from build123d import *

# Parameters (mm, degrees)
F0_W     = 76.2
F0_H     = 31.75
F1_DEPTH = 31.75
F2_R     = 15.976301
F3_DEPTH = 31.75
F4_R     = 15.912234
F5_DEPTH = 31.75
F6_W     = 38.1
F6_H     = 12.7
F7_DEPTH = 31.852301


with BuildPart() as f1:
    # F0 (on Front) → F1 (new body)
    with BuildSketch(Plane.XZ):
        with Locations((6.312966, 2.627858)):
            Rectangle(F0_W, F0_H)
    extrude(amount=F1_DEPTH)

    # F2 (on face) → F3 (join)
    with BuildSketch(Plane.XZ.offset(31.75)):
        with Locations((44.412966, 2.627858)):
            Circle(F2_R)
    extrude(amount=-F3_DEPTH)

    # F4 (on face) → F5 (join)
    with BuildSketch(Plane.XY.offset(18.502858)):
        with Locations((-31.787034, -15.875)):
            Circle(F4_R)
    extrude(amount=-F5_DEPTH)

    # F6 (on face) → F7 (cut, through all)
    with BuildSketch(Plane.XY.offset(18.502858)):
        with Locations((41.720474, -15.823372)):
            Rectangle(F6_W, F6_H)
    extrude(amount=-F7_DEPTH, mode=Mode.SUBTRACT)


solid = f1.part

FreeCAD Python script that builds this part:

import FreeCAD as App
import Part
import Sketcher
from FreeCAD import Vector
Q = App.Units.Quantity

doc = App.newDocument("Part")
params = doc.addObject("Spreadsheet::Sheet", "Params")
for row, (alias, value) in enumerate([
    ("sketch1_width", "3 in"),
    ("sketch1_height", "1.25 in"),
    ("pad1_length", "1.25 in"),
    ("pad2_length", "1.25 in"),
    ("pad3_length", "1.25 in"),
    ("sketch4_width", "1.5 in"),
    ("sketch4_height", "0.5 in"),
], start=1):
    params.set(f"A{row}", alias)
    params.set(f"B{row}", "=" + value)
    params.setAlias(f"B{row}", alias)

body = doc.addObject("PartDesign::Body", "Body")

# Sketch on XZ plane
sketch1 = body.newObject("Sketcher::SketchObject", "Sketch")
sketch1.AttachmentSupport = (doc.getObject("XZ_Plane"), [""])
sketch1.MapMode = "FlatFace"
sketch1.addGeometry(Part.LineSegment(Vector(-32, 19, 0), Vector(-32, -13, 0)), False)
sketch1.addGeometry(Part.LineSegment(Vector(-32, -13, 0), Vector(44, -13, 0)), False)
sketch1.addGeometry(Part.LineSegment(Vector(44, -13, 0), Vector(44, 19, 0)), False)
sketch1.addGeometry(Part.LineSegment(Vector(44, 19, 0), Vector(-32, 19, 0)), False)
sketch1.addConstraint(Sketcher.Constraint("Coincident", 0, 2, 1, 1))
sketch1.addConstraint(Sketcher.Constraint("Coincident", 1, 2, 2, 1))
sketch1.addConstraint(Sketcher.Constraint("Coincident", 2, 2, 3, 1))
sketch1.addConstraint(Sketcher.Constraint("Coincident", 3, 2, 0, 1))
sketch1.addConstraint(Sketcher.Constraint("Vertical", 0))
sketch1.addConstraint(Sketcher.Constraint("Horizontal", 1))
sketch1.addConstraint(Sketcher.Constraint("Vertical", 2))
sketch1.addConstraint(Sketcher.Constraint("Horizontal", 3))
sketch1.addConstraint(Sketcher.Constraint("DistanceX", 1, 1, 1, 2, Q("3 in")))
sketch1.addConstraint(Sketcher.Constraint("DistanceY", 0, 2, 0, 1, Q("1.25 in")))
sketch1.addConstraint(Sketcher.Constraint("DistanceY", -1, 1, 2, 2, 18.502858))
sketch1.addConstraint(Sketcher.Constraint("DistanceX", 0, 2, -1, 1, 31.787034))
sketch1.setExpression("Constraints[8]", "Params.sketch1_width")
sketch1.setExpression("Constraints[9]", "Params.sketch1_height")
pad1 = body.newObject("PartDesign::Pad", "Pad")
pad1.Profile = sketch1
pad1.setExpression("Length", "Params.pad1_length")

# Sketch on XZ plane
sketch2 = body.newObject("Sketcher::SketchObject", "Sketch001")
sketch2.AttachmentSupport = (doc.getObject("XZ_Plane"), [""])
sketch2.MapMode = "FlatFace"
sketch2.AttachmentOffset = App.Placement(Vector(0, 0, 1.25 * 25.4), App.Rotation())
sketch2.addGeometry(Part.Circle(Vector(44, 3, 0), Vector(0, 0, 1), 16), False)
sketch2.addConstraint(Sketcher.Constraint("Diameter", 0, 31.952602))
sketch2.addConstraint(Sketcher.Constraint("DistanceX", -1, 1, 0, 3, 44.412966))
sketch2.addConstraint(Sketcher.Constraint("DistanceY", -1, 1, 0, 3, 2.627858))
pad2 = body.newObject("PartDesign::Pad", "Pad001")
pad2.Profile = sketch2
pad2.setExpression("Length", "Params.pad2_length")
pad2.Reversed = True

# Sketch on XY plane
sketch3 = body.newObject("Sketcher::SketchObject", "Sketch002")
sketch3.AttachmentSupport = (doc.getObject("XY_Plane"), [""])
sketch3.MapMode = "FlatFace"
sketch3.AttachmentOffset = App.Placement(Vector(0, 0, 18.502858), App.Rotation())
sketch3.addGeometry(Part.Circle(Vector(-32, -16, 0), Vector(0, 0, 1), 16), False)
sketch3.addConstraint(Sketcher.Constraint("DistanceY", 0, 3, -1, 1, Q("0.625 in")))
sketch3.addConstraint(Sketcher.Constraint("Diameter", 0, 31.824468))
sketch3.addConstraint(Sketcher.Constraint("DistanceX", 0, 3, -1, 1, 31.787034))
pad3 = body.newObject("PartDesign::Pad", "Pad002")
pad3.Profile = sketch3
pad3.setExpression("Length", "Params.pad3_length")
pad3.Reversed = True

# Sketch on XY plane
sketch4 = body.newObject("Sketcher::SketchObject", "Sketch003")
sketch4.AttachmentSupport = (doc.getObject("XY_Plane"), [""])
sketch4.MapMode = "FlatFace"
sketch4.AttachmentOffset = App.Placement(Vector(0, 0, 18.502858), App.Rotation())
sketch4.addGeometry(Part.LineSegment(Vector(23, -9, 0), Vector(23, -22, 0)), False)
sketch4.addGeometry(Part.LineSegment(Vector(23, -22, 0), Vector(61, -22, 0)), False)
sketch4.addGeometry(Part.LineSegment(Vector(61, -22, 0), Vector(61, -9, 0)), False)
sketch4.addGeometry(Part.LineSegment(Vector(61, -9, 0), Vector(23, -9, 0)), False)
sketch4.addConstraint(Sketcher.Constraint("Coincident", 0, 2, 1, 1))
sketch4.addConstraint(Sketcher.Constraint("Coincident", 1, 2, 2, 1))
sketch4.addConstraint(Sketcher.Constraint("Coincident", 2, 2, 3, 1))
sketch4.addConstraint(Sketcher.Constraint("Coincident", 3, 2, 0, 1))
sketch4.addConstraint(Sketcher.Constraint("Vertical", 0))
sketch4.addConstraint(Sketcher.Constraint("Horizontal", 1))
sketch4.addConstraint(Sketcher.Constraint("Vertical", 2))
sketch4.addConstraint(Sketcher.Constraint("Horizontal", 3))
sketch4.addConstraint(Sketcher.Constraint("DistanceX", 1, 1, 1, 2, Q("1.5 in")))
sketch4.addConstraint(Sketcher.Constraint("DistanceY", 0, 2, 0, 1, Q("0.5 in")))
sketch4.addConstraint(Sketcher.Constraint("DistanceX", -1, 1, 0, 2, 22.670474))
sketch4.addConstraint(Sketcher.Constraint("DistanceY", 0, 2, -1, 1, 22.173372))
sketch4.setExpression("Constraints[8]", "Params.sketch4_width")
sketch4.setExpression("Constraints[9]", "Params.sketch4_height")
pocket1 = body.newObject("PartDesign::Pocket", "Pocket")
pocket1.Profile = sketch4
pocket1.Type = "ThroughAll"

doc.recompute()
